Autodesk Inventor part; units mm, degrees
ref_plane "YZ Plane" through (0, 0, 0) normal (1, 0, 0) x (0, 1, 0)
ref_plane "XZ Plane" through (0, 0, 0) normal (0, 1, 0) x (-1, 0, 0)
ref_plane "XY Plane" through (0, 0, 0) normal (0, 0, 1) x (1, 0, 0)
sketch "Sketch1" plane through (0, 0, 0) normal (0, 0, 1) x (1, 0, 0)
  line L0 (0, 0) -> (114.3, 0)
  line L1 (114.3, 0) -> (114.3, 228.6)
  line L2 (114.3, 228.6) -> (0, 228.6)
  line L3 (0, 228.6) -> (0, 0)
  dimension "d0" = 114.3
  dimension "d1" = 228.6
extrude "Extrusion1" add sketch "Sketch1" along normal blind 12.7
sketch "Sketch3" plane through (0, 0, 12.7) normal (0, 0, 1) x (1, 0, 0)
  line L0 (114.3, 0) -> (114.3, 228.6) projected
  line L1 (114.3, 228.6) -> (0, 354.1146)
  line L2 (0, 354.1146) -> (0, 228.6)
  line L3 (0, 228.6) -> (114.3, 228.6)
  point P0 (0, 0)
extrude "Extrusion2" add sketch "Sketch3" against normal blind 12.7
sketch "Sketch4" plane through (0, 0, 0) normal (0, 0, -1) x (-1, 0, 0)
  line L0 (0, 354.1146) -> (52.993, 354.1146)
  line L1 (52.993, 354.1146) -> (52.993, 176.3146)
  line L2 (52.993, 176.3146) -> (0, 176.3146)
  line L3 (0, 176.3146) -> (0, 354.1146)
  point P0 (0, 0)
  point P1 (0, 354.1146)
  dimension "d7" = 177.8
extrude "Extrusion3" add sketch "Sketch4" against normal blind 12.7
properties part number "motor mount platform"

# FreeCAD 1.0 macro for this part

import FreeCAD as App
import Part
import Sketcher

V = App.Vector
Q = App.Units.Quantity


def add_polygon(sketch, points):
    """Adds a closed chain of lines whose ends are joined by coincident constraints."""
    first, n = sketch.GeometryCount, len(points)
    for a, b in zip(points, points[1:] + points[:1]):
        sketch.addGeometry(Part.LineSegment(App.Vector(*a, 0), App.Vector(*b, 0)), False)
    for i in range(n):
        sketch.addConstraint(Sketcher.Constraint("Coincident", first + i, 2, first + (i + 1) % n, 1))

doc = App.newDocument("Part")
body = doc.addObject("PartDesign::Body", "Body")

# Sketch on XY plane
sketch1 = body.newObject("Sketcher::SketchObject", "Sketch")
sketch1.AttachmentSupport = (doc.getObject("XY_Plane"), [""])
sketch1.MapMode = "FlatFace"
add_polygon(sketch1, [(0, 229), (0, 0), (114, 0), (114, 229)])  # lines 0-3
sketch1.addConstraint([
    Sketcher.Constraint("Vertical", 0),
    Sketcher.Constraint("Horizontal", 1),
    Sketcher.Constraint("Vertical", 2),
    Sketcher.Constraint("Horizontal", 3),
    Sketcher.Constraint("Coincident", 0, 2, -1, 1),
    Sketcher.Constraint("DistanceY", 0, 2, 0, 1, Q("9 in")),
    Sketcher.Constraint("DistanceX", 1, 1, 1, 2, Q("4.5 in")),
])
pad1 = body.newObject("PartDesign::Pad", "Pad")
pad1.Profile = sketch1
pad1.Length = Q("0.5 in")

# Sketch on XY plane
sketch2 = body.newObject("Sketcher::SketchObject", "Sketch001")
sketch2.AttachmentSupport = (doc.getObject("XY_Plane"), [""])
sketch2.MapMode = "FlatFace"
sketch2.AttachmentOffset = App.Placement(V(0, 0, 0.5 * 25.4), App.Rotation())
add_polygon(sketch2, [(0, 229), (114, 229), (0, 354)])  # lines 0-2
sketch2.addConstraint([
    Sketcher.Constraint("Horizontal", 0),
    Sketcher.Constraint("Vertical", 2),
    Sketcher.Constraint("PointOnObject", 1, 2, -2),
    Sketcher.Constraint("DistanceX", 0, 1, 0, 2, Q("4.5 in")),
    Sketcher.Constraint("DistanceY", -1, 1, 0, 2, Q("9 in")),
    Sketcher.Constraint("DistanceY", 2, 2, 2, 1, Q("125.5146 mm")),
])
pad2 = body.newObject("PartDesign::Pad", "Pad001")
pad2.Profile = sketch2
pad2.Length = Q("0.5 in")
pad2.Reversed = True

# Sketch on XY plane
sketch3 = body.newObject("Sketcher::SketchObject", "Sketch002")
sketch3.AttachmentSupport = (doc.getObject("XY_Plane"), [""])
sketch3.MapMode = "FlatFace"
add_polygon(sketch3, [(-53, 354), (0, 354), (0, 176), (-53, 176)])  # lines 0-3
sketch3.addConstraint([
    Sketcher.Constraint("Horizontal", 0),
    Sketcher.Constraint("Vertical", 1),
    Sketcher.Constraint("Horizontal", 2),
    Sketcher.Constraint("Vertical", 3),
    Sketcher.Constraint("PointOnObject", 0, 2, -2),
    Sketcher.Constraint("DistanceY", 1, 2, 1, 1, Q("7 in")),
    Sketcher.Constraint("DistanceX", 0, 1, 0, 2, Q("52.993 mm")),
    Sketcher.Constraint("DistanceY", -1, 1, 0, 2, Q("354.1146 mm")),
])
pad3 = body.newObject("PartDesign::Pad", "Pad002")
pad3.Profile = sketch3
pad3.Length = Q("0.5 in")

doc.recompute()
